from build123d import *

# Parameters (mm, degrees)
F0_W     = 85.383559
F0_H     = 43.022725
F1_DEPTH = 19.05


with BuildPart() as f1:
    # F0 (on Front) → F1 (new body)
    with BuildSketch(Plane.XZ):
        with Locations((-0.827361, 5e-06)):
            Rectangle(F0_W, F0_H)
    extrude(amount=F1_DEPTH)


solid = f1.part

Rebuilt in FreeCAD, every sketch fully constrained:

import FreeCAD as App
import Part
import Sketcher
from FreeCAD import Vector
Q = App.Units.Quantity


def add_polygon(sketch, points):
    """Adds a closed chain of lines whose ends are joined by coincident constraints."""
    first, n = sketch.GeometryCount, len(points)
    for a, b in zip(points, points[1:] + points[:1]):
        sketch.addGeometry(Part.LineSegment(App.Vector(*a, 0), App.Vector(*b, 0)), False)
    for i in range(n):
        sketch.addConstraint(Sketcher.Constraint("Coincident", first + i, 2, first + (i + 1) % n, 1))

doc = App.newDocument("Part")
body = doc.addObject("PartDesign::Body", "Body")

sketch1 = doc.addObject("Sketcher::SketchObject", "Sketch")
body.addObject(sketch1)
sketch1.AttachmentSupport = (doc.XZ_Plane, [""])
sketch1.MapMode = "FlatFace"
add_polygon(sketch1, [(-44, 22), (-44, -22), (42, -22), (42, 22)])
sketch1.addConstraint(Sketcher.Constraint("Vertical", 0))
sketch1.addConstraint(Sketcher.Constraint("Horizontal", 1))
sketch1.addConstraint(Sketcher.Constraint("Vertical", 2))
sketch1.addConstraint(Sketcher.Constraint("Horizontal", 3))
sketch1.addConstraint(Sketcher.Constraint("DistanceX", 1, 1, 1, 2, 85.383559))
sketch1.addConstraint(Sketcher.Constraint("DistanceY", 0, 2, 0, 1, 43.022725))
sketch1.addConstraint(Sketcher.Constraint("DistanceX", 0, 2, -1, 1, 43.51914))
sketch1.addConstraint(Sketcher.Constraint("DistanceY", 0, 2, -1, 1, 21.511357))
pad1 = doc.addObject("PartDesign::Pad", "Pad")
body.addObject(pad1)
pad1.Profile = sketch1
pad1.Length = Q("0.75 in")

doc.recompute()
